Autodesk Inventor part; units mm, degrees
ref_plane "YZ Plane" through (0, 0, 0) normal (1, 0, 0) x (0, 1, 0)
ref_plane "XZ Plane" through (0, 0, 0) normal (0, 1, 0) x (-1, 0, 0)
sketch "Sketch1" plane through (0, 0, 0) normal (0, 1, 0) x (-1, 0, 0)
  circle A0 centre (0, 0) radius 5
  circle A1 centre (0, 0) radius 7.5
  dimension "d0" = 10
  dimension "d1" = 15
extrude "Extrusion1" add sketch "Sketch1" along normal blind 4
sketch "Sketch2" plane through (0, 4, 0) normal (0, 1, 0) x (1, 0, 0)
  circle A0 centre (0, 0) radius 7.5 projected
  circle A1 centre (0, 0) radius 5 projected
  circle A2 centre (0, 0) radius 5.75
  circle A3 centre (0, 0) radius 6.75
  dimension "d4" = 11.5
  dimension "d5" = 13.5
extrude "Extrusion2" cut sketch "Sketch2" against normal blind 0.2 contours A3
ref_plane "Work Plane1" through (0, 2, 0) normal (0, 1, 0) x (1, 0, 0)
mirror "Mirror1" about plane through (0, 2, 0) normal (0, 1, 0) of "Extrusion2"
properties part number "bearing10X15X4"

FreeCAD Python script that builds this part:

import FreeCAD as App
import Part
import Sketcher

V = App.Vector

doc = App.newDocument("Part")
body = doc.addObject("PartDesign::Body", "Body")

# Sketch on XZ plane
sketch1 = body.newObject("Sketcher::SketchObject", "Sketch")
sketch1.AttachmentSupport = (doc.getObject("XZ_Plane"), [""])
sketch1.MapMode = "FlatFace"
sketch1.addGeometry(Part.Circle(V(0, 0, 0), V(0, 0, 1), 8), False)
sketch1.addGeometry(Part.Circle(V(0, 0, 0), V(0, 0, 1), 5), False)
sketch1.addConstraint(Sketcher.Constraint("Coincident", 0, 3, -1, 1))
sketch1.addConstraint(Sketcher.Constraint("Coincident", 1, 3, -1, 1))
sketch1.addConstraint(Sketcher.Constraint("Diameter", 0, 15.0))
sketch1.addConstraint(Sketcher.Constraint("Diameter", 1, 10.0))
pad1 = body.newObject("PartDesign::Pad", "Pad")
pad1.Profile = sketch1
pad1.Length = 4
pad1.Reversed = True

# Sketch on XZ plane
sketch2 = body.newObject("Sketcher::SketchObject", "Sketch001")
sketch2.AttachmentSupport = (doc.getObject("XZ_Plane"), [""])
sketch2.MapMode = "FlatFace"
sketch2.AttachmentOffset = App.Placement(V(0, 0, -4), App.Rotation())
sketch2.addGeometry(Part.Circle(V(0, 0, 0), V(0, 0, 1), 7), False)
sketch2.addGeometry(Part.Circle(V(0, 0, 0), V(0, 0, 1), 6), False)
sketch2.addConstraint(Sketcher.Constraint("Coincident", 0, 3, -1, 1))
sketch2.addConstraint(Sketcher.Constraint("Coincident", 1, 3, -1, 1))
sketch2.addConstraint(Sketcher.Constraint("Diameter", 0, 13.5))
sketch2.addConstraint(Sketcher.Constraint("Diameter", 1, 11.5))
pocket1 = body.newObject("PartDesign::Pocket", "Pocket")
pocket1.Profile = sketch2
pocket1.Length = 0.2
pocket1.Reversed = True
doc.recompute()

datumplane = body.newObject("PartDesign::Plane", "DatumPlane")
datumplane.AttachmentSupport = (doc.getObject("XZ_Plane"), [""])
datumplane.MapMode = "FlatFace"
datumplane.AttachmentOffset = App.Placement(V(0, 0, -2), App.Rotation())
mirrored = body.newObject("PartDesign::Mirrored", "Mirrored")
mirrored.Originals = [pocket1]
mirrored.MirrorPlane = (datumplane, [""])
body.Tip = mirrored

doc.recompute()
